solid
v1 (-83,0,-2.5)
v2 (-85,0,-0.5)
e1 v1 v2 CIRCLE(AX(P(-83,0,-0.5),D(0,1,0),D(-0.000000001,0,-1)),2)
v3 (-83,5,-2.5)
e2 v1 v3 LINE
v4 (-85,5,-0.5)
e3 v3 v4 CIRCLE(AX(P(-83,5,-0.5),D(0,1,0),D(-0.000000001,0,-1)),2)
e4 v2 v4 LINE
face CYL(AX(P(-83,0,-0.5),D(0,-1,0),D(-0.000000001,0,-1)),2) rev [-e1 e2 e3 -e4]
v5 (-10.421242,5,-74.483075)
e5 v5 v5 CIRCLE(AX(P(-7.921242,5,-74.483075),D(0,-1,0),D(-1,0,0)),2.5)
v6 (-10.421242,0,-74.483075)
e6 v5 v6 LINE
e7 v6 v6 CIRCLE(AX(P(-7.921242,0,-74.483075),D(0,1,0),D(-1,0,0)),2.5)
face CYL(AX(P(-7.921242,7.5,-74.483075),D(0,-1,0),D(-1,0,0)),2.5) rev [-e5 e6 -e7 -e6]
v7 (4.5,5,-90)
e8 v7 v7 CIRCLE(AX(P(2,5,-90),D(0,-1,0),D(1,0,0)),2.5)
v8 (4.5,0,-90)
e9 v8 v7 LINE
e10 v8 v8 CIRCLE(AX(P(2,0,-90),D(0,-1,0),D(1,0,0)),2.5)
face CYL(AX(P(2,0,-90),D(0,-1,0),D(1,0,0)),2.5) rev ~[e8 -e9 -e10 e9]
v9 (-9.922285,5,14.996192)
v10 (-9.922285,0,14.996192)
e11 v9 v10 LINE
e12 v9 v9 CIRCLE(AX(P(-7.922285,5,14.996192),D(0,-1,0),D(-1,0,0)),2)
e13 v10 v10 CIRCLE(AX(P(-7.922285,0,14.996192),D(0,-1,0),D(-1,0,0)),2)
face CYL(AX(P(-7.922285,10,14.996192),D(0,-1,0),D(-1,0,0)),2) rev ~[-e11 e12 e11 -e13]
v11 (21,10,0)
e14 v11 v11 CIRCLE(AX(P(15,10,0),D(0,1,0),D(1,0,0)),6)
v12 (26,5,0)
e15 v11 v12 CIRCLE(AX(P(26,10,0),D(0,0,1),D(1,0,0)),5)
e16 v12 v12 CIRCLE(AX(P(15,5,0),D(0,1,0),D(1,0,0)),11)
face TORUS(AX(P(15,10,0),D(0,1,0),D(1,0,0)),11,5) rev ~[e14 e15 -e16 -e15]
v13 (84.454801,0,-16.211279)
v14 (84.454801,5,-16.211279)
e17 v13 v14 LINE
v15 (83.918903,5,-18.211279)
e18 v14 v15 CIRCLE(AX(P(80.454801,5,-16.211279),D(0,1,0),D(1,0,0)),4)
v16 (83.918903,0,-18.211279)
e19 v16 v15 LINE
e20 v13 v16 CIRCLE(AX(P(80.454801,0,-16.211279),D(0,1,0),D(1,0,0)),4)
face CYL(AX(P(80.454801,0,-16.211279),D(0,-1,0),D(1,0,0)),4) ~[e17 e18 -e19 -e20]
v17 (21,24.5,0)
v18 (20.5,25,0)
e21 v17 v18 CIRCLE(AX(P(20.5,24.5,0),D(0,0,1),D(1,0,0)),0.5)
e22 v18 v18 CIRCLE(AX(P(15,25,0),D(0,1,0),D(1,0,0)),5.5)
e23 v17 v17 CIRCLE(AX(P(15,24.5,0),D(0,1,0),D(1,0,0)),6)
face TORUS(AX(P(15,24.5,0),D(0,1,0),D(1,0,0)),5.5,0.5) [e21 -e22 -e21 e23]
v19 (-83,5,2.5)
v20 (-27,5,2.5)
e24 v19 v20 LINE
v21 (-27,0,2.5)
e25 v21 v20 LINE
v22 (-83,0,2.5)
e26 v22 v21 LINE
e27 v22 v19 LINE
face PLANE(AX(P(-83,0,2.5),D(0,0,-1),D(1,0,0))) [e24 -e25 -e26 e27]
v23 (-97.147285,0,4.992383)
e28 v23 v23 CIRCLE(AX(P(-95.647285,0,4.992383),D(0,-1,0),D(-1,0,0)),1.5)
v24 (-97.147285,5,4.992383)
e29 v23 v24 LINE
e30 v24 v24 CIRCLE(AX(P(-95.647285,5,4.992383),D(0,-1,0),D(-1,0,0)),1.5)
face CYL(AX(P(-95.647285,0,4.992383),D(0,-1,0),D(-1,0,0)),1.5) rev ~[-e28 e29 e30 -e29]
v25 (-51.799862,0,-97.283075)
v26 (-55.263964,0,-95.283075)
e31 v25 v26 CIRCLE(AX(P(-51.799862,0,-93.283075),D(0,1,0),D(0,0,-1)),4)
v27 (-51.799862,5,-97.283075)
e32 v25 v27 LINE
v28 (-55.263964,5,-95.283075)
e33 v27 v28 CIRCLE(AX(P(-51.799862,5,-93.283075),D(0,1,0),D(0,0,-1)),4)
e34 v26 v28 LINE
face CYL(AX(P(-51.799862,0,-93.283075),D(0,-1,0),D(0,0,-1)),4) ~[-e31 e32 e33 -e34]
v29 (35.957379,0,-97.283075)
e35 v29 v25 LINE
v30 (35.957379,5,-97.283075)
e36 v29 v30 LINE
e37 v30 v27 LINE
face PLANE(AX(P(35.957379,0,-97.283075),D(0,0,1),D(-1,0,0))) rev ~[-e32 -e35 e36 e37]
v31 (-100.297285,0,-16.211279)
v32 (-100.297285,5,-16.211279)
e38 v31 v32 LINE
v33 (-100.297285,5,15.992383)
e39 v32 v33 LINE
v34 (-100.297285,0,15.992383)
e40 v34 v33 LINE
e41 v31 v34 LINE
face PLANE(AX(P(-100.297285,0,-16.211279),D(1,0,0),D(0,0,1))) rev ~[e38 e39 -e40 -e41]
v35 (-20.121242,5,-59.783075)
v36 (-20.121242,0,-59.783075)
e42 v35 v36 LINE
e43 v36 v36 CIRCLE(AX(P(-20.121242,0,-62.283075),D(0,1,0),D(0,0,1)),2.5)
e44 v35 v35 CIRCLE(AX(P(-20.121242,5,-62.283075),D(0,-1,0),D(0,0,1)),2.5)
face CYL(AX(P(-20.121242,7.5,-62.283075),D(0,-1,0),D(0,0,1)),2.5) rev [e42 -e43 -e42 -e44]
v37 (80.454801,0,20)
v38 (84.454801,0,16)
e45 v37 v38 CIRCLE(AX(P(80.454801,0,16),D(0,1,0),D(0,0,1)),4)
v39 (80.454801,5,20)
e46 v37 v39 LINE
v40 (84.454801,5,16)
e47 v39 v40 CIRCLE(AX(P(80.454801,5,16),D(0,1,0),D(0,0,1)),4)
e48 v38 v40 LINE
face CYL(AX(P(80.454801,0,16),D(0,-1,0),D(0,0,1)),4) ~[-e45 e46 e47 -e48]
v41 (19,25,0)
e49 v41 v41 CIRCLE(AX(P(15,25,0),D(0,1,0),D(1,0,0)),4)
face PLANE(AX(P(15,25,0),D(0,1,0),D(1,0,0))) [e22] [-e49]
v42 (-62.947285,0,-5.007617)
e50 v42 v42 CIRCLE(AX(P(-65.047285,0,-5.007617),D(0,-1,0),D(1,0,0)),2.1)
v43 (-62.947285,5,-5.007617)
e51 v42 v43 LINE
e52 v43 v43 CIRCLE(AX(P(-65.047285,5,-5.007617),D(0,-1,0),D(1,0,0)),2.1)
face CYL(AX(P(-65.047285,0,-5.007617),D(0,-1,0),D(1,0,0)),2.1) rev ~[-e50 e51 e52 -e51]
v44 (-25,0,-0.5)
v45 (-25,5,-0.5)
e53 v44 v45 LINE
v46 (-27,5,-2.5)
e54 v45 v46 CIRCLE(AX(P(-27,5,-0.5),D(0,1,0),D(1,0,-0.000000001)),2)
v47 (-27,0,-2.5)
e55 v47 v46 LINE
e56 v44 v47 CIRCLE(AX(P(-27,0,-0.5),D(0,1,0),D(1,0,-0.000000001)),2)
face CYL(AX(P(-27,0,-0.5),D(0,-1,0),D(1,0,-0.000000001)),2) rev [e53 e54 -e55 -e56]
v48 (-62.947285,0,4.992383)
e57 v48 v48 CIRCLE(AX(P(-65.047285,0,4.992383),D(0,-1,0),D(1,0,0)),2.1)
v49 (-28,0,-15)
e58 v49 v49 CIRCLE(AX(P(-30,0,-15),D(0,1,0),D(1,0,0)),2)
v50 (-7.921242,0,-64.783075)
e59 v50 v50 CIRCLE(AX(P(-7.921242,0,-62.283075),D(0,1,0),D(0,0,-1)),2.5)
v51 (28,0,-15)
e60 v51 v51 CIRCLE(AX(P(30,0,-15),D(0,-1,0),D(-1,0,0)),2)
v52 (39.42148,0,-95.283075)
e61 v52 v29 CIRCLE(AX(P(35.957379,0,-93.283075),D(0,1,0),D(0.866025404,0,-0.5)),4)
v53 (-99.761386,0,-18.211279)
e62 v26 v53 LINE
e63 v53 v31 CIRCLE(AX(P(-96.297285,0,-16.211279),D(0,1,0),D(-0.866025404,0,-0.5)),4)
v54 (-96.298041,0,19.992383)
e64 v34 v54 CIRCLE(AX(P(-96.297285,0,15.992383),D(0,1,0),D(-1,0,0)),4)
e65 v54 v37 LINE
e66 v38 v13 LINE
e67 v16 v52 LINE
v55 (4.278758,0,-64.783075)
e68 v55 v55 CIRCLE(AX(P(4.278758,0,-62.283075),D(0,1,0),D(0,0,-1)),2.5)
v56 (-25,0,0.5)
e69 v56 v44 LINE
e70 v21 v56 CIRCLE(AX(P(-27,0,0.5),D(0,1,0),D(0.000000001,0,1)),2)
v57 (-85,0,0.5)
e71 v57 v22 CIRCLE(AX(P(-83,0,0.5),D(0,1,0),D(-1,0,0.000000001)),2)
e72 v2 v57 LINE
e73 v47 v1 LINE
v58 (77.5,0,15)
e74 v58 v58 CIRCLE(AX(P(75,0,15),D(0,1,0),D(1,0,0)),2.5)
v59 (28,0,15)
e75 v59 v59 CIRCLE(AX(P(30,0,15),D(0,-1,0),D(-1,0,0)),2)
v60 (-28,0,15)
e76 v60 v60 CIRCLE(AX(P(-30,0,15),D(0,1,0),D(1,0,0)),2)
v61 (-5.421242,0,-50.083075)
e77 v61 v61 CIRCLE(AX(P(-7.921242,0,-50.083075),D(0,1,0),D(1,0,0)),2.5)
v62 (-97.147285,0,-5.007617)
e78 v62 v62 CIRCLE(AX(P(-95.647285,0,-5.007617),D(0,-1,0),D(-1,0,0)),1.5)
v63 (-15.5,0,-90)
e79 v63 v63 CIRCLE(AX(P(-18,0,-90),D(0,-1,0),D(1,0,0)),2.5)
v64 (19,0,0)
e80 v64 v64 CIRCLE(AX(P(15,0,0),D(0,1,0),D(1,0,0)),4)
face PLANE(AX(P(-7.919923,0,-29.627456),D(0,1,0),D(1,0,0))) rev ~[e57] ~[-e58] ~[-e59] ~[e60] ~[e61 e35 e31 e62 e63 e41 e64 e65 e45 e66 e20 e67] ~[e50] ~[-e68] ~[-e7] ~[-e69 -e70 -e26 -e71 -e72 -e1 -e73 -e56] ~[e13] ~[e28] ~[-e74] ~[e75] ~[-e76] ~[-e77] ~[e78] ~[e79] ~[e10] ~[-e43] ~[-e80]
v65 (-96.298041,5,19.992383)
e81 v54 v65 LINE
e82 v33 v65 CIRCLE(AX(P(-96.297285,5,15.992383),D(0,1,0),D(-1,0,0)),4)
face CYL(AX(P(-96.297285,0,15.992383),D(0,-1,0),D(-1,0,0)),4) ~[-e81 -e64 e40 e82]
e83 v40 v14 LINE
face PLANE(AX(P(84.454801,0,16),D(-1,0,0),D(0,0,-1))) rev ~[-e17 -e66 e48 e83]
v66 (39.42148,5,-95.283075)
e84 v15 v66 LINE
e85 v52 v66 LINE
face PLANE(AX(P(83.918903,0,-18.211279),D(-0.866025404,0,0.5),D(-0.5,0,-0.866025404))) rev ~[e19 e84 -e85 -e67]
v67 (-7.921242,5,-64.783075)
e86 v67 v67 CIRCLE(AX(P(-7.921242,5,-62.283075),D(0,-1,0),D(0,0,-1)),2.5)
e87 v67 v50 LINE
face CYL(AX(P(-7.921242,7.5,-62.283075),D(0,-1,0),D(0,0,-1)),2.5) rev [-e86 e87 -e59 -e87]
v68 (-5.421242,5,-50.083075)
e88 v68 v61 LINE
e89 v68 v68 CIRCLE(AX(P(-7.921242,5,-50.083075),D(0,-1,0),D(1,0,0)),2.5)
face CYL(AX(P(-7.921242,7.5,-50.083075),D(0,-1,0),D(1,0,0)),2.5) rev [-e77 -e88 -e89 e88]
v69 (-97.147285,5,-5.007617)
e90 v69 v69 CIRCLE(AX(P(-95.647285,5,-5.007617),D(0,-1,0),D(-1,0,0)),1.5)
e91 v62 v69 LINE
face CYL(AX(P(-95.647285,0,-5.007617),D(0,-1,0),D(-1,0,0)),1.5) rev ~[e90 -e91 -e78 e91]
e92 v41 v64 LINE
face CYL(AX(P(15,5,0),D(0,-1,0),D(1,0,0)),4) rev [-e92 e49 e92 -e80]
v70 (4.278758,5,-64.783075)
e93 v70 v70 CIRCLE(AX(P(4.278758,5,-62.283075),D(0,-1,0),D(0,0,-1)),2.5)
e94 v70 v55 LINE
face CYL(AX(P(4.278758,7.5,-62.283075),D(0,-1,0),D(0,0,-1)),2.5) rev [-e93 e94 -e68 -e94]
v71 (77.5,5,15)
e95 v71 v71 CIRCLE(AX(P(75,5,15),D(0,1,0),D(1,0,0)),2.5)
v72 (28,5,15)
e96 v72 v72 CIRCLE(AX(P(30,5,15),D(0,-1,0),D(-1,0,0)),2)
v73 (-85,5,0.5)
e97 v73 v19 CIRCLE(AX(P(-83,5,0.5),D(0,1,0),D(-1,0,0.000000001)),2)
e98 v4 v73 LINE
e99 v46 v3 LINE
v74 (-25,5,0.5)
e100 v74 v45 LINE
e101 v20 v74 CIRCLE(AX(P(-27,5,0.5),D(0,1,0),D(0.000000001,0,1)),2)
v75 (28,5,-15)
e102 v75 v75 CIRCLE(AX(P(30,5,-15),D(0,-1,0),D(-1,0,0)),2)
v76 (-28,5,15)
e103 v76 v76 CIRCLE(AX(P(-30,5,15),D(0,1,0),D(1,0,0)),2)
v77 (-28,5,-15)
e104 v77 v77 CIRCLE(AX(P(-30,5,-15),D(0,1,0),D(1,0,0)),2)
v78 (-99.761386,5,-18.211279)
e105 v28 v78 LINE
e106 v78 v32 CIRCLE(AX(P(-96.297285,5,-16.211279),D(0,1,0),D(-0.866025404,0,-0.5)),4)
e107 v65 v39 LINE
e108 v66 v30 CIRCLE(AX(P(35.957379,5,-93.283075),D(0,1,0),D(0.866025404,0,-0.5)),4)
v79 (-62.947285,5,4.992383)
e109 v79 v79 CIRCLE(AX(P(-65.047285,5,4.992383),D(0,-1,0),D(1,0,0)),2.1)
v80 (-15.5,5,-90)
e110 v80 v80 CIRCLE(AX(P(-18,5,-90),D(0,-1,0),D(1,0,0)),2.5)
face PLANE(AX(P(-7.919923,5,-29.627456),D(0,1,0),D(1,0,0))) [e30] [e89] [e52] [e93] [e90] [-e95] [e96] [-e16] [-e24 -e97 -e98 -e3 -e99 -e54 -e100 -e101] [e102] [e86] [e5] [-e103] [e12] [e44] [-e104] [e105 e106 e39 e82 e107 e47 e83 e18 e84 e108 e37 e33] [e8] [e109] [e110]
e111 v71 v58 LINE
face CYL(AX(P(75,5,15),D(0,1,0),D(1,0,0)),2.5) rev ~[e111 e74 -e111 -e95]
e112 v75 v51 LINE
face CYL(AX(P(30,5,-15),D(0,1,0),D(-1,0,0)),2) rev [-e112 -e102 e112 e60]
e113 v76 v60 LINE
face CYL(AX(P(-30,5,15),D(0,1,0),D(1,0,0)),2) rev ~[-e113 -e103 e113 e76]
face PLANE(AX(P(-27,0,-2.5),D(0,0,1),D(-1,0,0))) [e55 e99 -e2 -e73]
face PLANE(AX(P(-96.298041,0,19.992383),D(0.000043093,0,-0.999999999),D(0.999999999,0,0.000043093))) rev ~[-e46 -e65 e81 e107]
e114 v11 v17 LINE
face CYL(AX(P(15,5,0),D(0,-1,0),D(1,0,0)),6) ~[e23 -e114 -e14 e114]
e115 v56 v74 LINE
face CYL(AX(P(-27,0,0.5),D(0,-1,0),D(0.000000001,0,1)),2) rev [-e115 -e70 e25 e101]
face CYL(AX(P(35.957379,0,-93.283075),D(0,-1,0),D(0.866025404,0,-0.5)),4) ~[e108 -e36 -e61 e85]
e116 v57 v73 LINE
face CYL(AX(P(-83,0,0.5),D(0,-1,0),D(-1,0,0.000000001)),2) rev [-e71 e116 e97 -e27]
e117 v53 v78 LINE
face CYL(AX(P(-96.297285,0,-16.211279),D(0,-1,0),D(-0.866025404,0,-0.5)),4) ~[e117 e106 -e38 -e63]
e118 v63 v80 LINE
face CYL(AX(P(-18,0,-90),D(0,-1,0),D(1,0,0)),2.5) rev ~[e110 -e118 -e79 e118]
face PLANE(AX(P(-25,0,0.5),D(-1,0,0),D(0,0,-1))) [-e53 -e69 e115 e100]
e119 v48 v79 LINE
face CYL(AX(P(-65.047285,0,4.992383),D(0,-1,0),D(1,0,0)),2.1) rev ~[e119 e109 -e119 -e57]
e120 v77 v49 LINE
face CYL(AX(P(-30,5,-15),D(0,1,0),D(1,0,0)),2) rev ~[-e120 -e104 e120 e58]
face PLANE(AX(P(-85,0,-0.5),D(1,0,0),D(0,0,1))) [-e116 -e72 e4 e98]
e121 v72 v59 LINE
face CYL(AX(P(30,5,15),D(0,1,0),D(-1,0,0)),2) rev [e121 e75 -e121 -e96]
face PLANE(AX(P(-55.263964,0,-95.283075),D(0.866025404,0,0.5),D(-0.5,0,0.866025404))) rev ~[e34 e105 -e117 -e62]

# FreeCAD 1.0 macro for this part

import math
import FreeCAD as App
import Part
import Sketcher

V = App.Vector
Q = App.Units.Quantity


def edges_at(feature, points):
    """Names of the edges that pass closest to the given points."""
    edges = feature.Shape.Edges
    near = lambda p: min(range(len(edges)), key=lambda i: edges[i].distToShape(Part.Vertex(*p))[0])
    return sorted({f"Edge{near(p) + 1}" for p in points})


def add_polygon(sketch, points):
    """Adds a closed chain of lines whose ends are joined by coincident constraints."""
    first, n = sketch.GeometryCount, len(points)
    for a, b in zip(points, points[1:] + points[:1]):
        sketch.addGeometry(Part.LineSegment(App.Vector(*a, 0), App.Vector(*b, 0)), False)
    for i in range(n):
        sketch.addConstraint(Sketcher.Constraint("Coincident", first + i, 2, first + (i + 1) % n, 1))

doc = App.newDocument("Part")
body = doc.addObject("PartDesign::Body", "Body")

sketch1 = body.newObject("Sketcher::SketchObject", "Sketch")
sketch1.AttachmentSupport = (doc.getObject("XZ_Plane"), [""])
sketch1.MapMode = "FlatFace"
sketch1.addGeometry(Part.LineSegment(V(-96.298041, 19.992383, 0), V(80.454801, 20, 0)), False)
sketch1.addGeometry(Part.ArcOfCircle(Part.Circle(V(80.454801, 16, 0), V(0, 0, 1), 4), math.radians(0), math.radians(90)), False)
sketch1.addGeometry(Part.LineSegment(V(84.454801, 16, 0), V(84.454801, -16.211279, 0)), False)
sketch1.addGeometry(Part.ArcOfCircle(Part.Circle(V(80.454801, -16.211279, 0), V(0, 0, 1), 4), math.radians(-30), math.radians(0)), False)
sketch1.addGeometry(Part.LineSegment(V(83.918903, -18.211279, 0), V(39.42148, -95.283075, 0)), False)
sketch1.addGeometry(Part.ArcOfCircle(Part.Circle(V(35.957379, -93.283075, 0), V(0, 0, 1), 4), math.radians(-90), math.radians(-30)), False)
sketch1.addGeometry(Part.LineSegment(V(35.957379, -97.283075, 0), V(-51.799862, -97.283075, 0)), False)
sketch1.addGeometry(Part.ArcOfCircle(Part.Circle(V(-51.799862, -93.283075, 0), V(0, 0, 1), 4), math.radians(-150), math.radians(-90)), False)
sketch1.addGeometry(Part.LineSegment(V(-55.263964, -95.283075, 0), V(-99.761386, -18.211279, 0)), False)
sketch1.addGeometry(Part.ArcOfCircle(Part.Circle(V(-96.297285, -16.211279, 0), V(0, 0, 1), 4), math.radians(-180), math.radians(-150)), False)
sketch1.addGeometry(Part.LineSegment(V(-100.297285, -16.211279, 0), V(-100.297285, 15.992383, 0)), False)
sketch1.addGeometry(Part.ArcOfCircle(Part.Circle(V(-96.297285, 15.992383, 0), V(0, 0, 1), 4), math.radians(90.01083), math.radians(180)), False)
sketch1.addGeometry(Part.LineSegment(V(-83, -2.5, 0), V(-27, -2.5, 0)), False)
sketch1.addGeometry(Part.ArcOfCircle(Part.Circle(V(-27, -0.5, 0), V(0, 0, 1), 2), math.radians(-90), math.radians(0)), False)
sketch1.addGeometry(Part.LineSegment(V(-25, -0.5, 0), V(-25, 0.5, 0)), False)
sketch1.addGeometry(Part.ArcOfCircle(Part.Circle(V(-27, 0.5, 0), V(0, 0, 1), 2), math.radians(0), math.radians(90)), False)
sketch1.addGeometry(Part.LineSegment(V(-27, 2.5, 0), V(-83, 2.5, 0)), False)
sketch1.addGeometry(Part.ArcOfCircle(Part.Circle(V(-83, 0.5, 0), V(0, 0, 1), 2), math.radians(90), math.radians(180)), False)
sketch1.addGeometry(Part.LineSegment(V(-85, 0.5, 0), V(-85, -0.5, 0)), False)
sketch1.addGeometry(Part.ArcOfCircle(Part.Circle(V(-83, -0.5, 0), V(0, 0, 1), 2), math.radians(-180), math.radians(-90)), False)
sketch1.addGeometry(Part.Circle(V(15, 0, 0), V(0, 0, 1), 4), False)
sketch1.addConstraint(Sketcher.Constraint("Coincident", 0, 2, 1, 2))
sketch1.addConstraint(Sketcher.Constraint("Tangent", 1, 1, 2, 1))
sketch1.addConstraint(Sketcher.Constraint("Tangent", 2, 2, 3, 2))
sketch1.addConstraint(Sketcher.Constraint("Tangent", 3, 1, 4, 1))
sketch1.addConstraint(Sketcher.Constraint("Tangent", 4, 2, 5, 2))
sketch1.addConstraint(Sketcher.Constraint("Tangent", 5, 1, 6, 1))
sketch1.addConstraint(Sketcher.Constraint("Tangent", 6, 2, 7, 2))
sketch1.addConstraint(Sketcher.Constraint("Tangent", 7, 1, 8, 1))
sketch1.addConstraint(Sketcher.Constraint("Tangent", 8, 2, 9, 2))
sketch1.addConstraint(Sketcher.Constraint("Tangent", 9, 1, 10, 1))
sketch1.addConstraint(Sketcher.Constraint("Tangent", 10, 2, 11, 2))
sketch1.addConstraint(Sketcher.Constraint("Coincident", 11, 1, 0, 1))
sketch1.addConstraint(Sketcher.Constraint("Tangent", 12, 2, 13, 1))
sketch1.addConstraint(Sketcher.Constraint("Tangent", 13, 2, 14, 1))
sketch1.addConstraint(Sketcher.Constraint("Tangent", 14, 2, 15, 1))
sketch1.addConstraint(Sketcher.Constraint("Tangent", 15, 2, 16, 1))
sketch1.addConstraint(Sketcher.Constraint("Tangent", 16, 2, 17, 1))
sketch1.addConstraint(Sketcher.Constraint("Tangent", 17, 2, 18, 1))
sketch1.addConstraint(Sketcher.Constraint("Tangent", 18, 2, 19, 1))
sketch1.addConstraint(Sketcher.Constraint("Tangent", 19, 2, 12, 1))
sketch1.addConstraint(Sketcher.Constraint("Vertical", 2))
sketch1.addConstraint(Sketcher.Constraint("Horizontal", 6))
sketch1.addConstraint(Sketcher.Constraint("Vertical", 10))
sketch1.addConstraint(Sketcher.Constraint("Horizontal", 12))
sketch1.addConstraint(Sketcher.Constraint("Vertical", 14))
sketch1.addConstraint(Sketcher.Constraint("Horizontal", 16))
sketch1.addConstraint(Sketcher.Constraint("Vertical", 18))
sketch1.addConstraint(Sketcher.Constraint("Equal", 1, 3))
sketch1.addConstraint(Sketcher.Constraint("Equal", 3, 5))
sketch1.addConstraint(Sketcher.Constraint("Equal", 5, 7))
sketch1.addConstraint(Sketcher.Constraint("Equal", 7, 9))
sketch1.addConstraint(Sketcher.Constraint("Equal", 9, 11))
sketch1.addConstraint(Sketcher.Constraint("Equal", 13, 15))
sketch1.addConstraint(Sketcher.Constraint("Equal", 15, 17))
sketch1.addConstraint(Sketcher.Constraint("Equal", 17, 19))
sketch1.addConstraint(Sketcher.Constraint("Equal", 11, 20))
sketch1.addConstraint(Sketcher.Constraint("PointOnObject", 20, 3, -1))
sketch1.addConstraint(Sketcher.Constraint("Horizontal", 3, 3, 9, 3))
sketch1.addConstraint(Sketcher.Constraint("Horizontal", 4, 2, 7, 1))
sketch1.addConstraint(Sketcher.Constraint("Vertical", 3, 3, 0, 2))
sketch1.addConstraint(Sketcher.Constraint("Diameter", 20, 8.0))
sketch1.addConstraint(Sketcher.Constraint("Radius", 13, 2.0))
sketch1.addConstraint(Sketcher.Constraint("DistanceX", 12, 1, 12, 2, 56.0))
sketch1.addConstraint(Sketcher.Constraint("DistanceY", 14, 1, 14, 2, 1.0))
sketch1.addConstraint(Sketcher.Constraint("Angle", 4, Q("-120 deg")))
sketch1.addConstraint(Sketcher.Constraint("DistanceY", -1, 1, 1, 3, 16.0))
sketch1.addConstraint(Sketcher.Constraint("DistanceX", 13, 3, -1, 1, 27.0))
sketch1.addConstraint(Sketcher.Constraint("DistanceX", -1, 1, 20, 3, 15.0))
sketch1.addConstraint(Sketcher.Constraint("DistanceY", 13, 3, -1, 1, 0.5))
sketch1.addConstraint(Sketcher.Constraint("DistanceX", 6, 2, 6, 1, 87.757241))
sketch1.addConstraint(Sketcher.Constraint("DistanceY", 2, 2, 2, 1, 32.211279))
sketch1.addConstraint(Sketcher.Constraint("DistanceY", 10, 1, 10, 2, 32.203662))
sketch1.addConstraint(Sketcher.Constraint("DistanceX", -1, 1, 1, 3, 80.454801))
sketch1.addConstraint(Sketcher.Constraint("DistanceX", -1, 1, 5, 3, 35.957379))
sketch1.addConstraint(Sketcher.Constraint("DistanceX", 11, 1, -1, 1, 96.298041))
pad1 = body.newObject("PartDesign::Pad", "Pad")
pad1.Profile = sketch1
pad1.Length = 5
pad1.Reversed = True

sketch2 = body.newObject("Sketcher::SketchObject", "Sketch001")
sketch2.AttachmentSupport = (doc.getObject("XZ_Plane"), [""])
sketch2.MapMode = "FlatFace"
sketch2.AttachmentOffset = App.Placement(V(0, 0, -5), App.Rotation())
sketch2.addGeometry(Part.Circle(V(15, 0, 0), V(0, 0, 1), 6), False)
sketch2.addGeometry(Part.Circle(V(15, 0, 0), V(0, 0, 1), 4), False)
sketch2.addConstraint(Sketcher.Constraint("Coincident", 1, 3, 0, 3))
sketch2.addConstraint(Sketcher.Constraint("PointOnObject", 0, 3, -1))
sketch2.addConstraint(Sketcher.Constraint("Diameter", 0, 12.0))
sketch2.addConstraint(Sketcher.Constraint("Diameter", 1, 8.0))
sketch2.addConstraint(Sketcher.Constraint("DistanceX", -1, 1, 0, 3, 15.0))
pad2 = body.newObject("PartDesign::Pad", "Pad001")
pad2.Profile = sketch2
pad2.Length = 20
pad2.Reversed = True
doc.recompute()

fillet = body.newObject("PartDesign::Fillet", "Fillet")
fillet.Base = (pad2, edges_at(pad2, [(9, 5, 0)]))
fillet.Radius = 5
doc.recompute()

fillet2 = body.newObject("PartDesign::Fillet", "Fillet001")
fillet2.Base = (fillet, edges_at(fillet, [(9, 25, 0)]))
fillet2.Radius = 0.5

sketch3 = body.newObject("Sketcher::SketchObject", "Sketch002")
sketch3.AttachmentSupport = (doc.getObject("XZ_Plane"), [""])
sketch3.MapMode = "FlatFace"
sketch3.AttachmentOffset = App.Placement(V(0, 0, -5), App.Rotation())
sketch3.addGeometry(Part.Circle(V(-30, -15, 0), V(0, 0, 1), 2), False)
sketch3.addGeometry(Part.Circle(V(-30, 15, 0), V(0, 0, 1), 2), False)
sketch3.addConstraint(Sketcher.Constraint("Equal", 0, 1))
sketch3.addConstraint(Sketcher.Constraint("Symmetric", 0, 3, 1, 3, -1))
sketch3.addConstraint(Sketcher.Constraint("Diameter", 0, 4.0))
sketch3.addConstraint(Sketcher.Constraint("DistanceX", 0, 3, -1, 1, 30.0))
sketch3.addConstraint(Sketcher.Constraint("DistanceY", 0, 3, -1, 1, 15.0))
pocket1 = body.newObject("PartDesign::Pocket", "Pocket")
pocket1.Profile = sketch3
pocket1.Length = 5
pocket1.Reversed = True
doc.recompute()

mirrored = body.newObject("PartDesign::Mirrored", "Mirrored")
mirrored.Originals = [pocket1]
mirrored.MirrorPlane = (doc.getObject("YZ_Plane"), [""])
body.Tip = mirrored

sketch4 = body.newObject("Sketcher::SketchObject", "Sketch003")
sketch4.AttachmentSupport = (doc.getObject("XZ_Plane"), [""])
sketch4.MapMode = "FlatFace"
sketch4.addGeometry(Part.Circle(V(-18, -90, 0), V(0, 0, 1), 2.5), False)
sketch4.addConstraint(Sketcher.Constraint("Diameter", 0, 5.0))
sketch4.addConstraint(Sketcher.Constraint("DistanceX", 0, 3, -1, 1, 18.0))
sketch4.addConstraint(Sketcher.Constraint("DistanceY", 0, 3, -1, 1, 90.0))
pocket2 = body.newObject("PartDesign::Pocket", "Pocket001")
pocket2.Profile = sketch4
pocket2.Type = "UpToFirst"

sketch5 = body.newObject("Sketcher::SketchObject", "Sketch004")
sketch5.AttachmentSupport = (doc.getObject("XZ_Plane"), [""])
sketch5.MapMode = "FlatFace"
sketch5.addGeometry(Part.Circle(V(2, -90, 0), V(0, 0, 1), 2.5), False)
sketch5.addConstraint(Sketcher.Constraint("Diameter", 0, 5.0))
sketch5.addConstraint(Sketcher.Constraint("DistanceX", -1, 1, 0, 3, 2.0))
sketch5.addConstraint(Sketcher.Constraint("DistanceY", 0, 3, -1, 1, 90.0))
pocket3 = body.newObject("PartDesign::Pocket", "Pocket002")
pocket3.Profile = sketch5
pocket3.Type = "UpToFirst"

sketch6 = body.newObject("Sketcher::SketchObject", "Sketch005")
sketch6.AttachmentSupport = (doc.getObject("XZ_Plane"), [""])
sketch6.MapMode = "FlatFace"
sketch6.addGeometry(Part.Circle(V(-95.647285, 4.992383, 0), V(0, 0, 1), 1.5), False)
sketch6.addConstraint(Sketcher.Constraint("Diameter", 0, 3.0))
sketch6.addConstraint(Sketcher.Constraint("DistanceX", 0, 3, -1, 1, 95.647285))
sketch6.addConstraint(Sketcher.Constraint("DistanceY", -1, 1, 0, 3, 4.992383))
pocket4 = body.newObject("PartDesign::Pocket", "Pocket003")
pocket4.Profile = sketch6
pocket4.Type = "UpToFirst"

sketch7 = body.newObject("Sketcher::SketchObject", "Sketch006")
sketch7.AttachmentSupport = (doc.getObject("XZ_Plane"), [""])
sketch7.MapMode = "FlatFace"
sketch7.addGeometry(Part.Circle(V(-95.647285, -5.007617, 0), V(0, 0, 1), 1.5), False)
sketch7.addConstraint(Sketcher.Constraint("Diameter", 0, 3.0))
sketch7.addConstraint(Sketcher.Constraint("DistanceX", 0, 3, -1, 1, 95.647285))
sketch7.addConstraint(Sketcher.Constraint("DistanceY", 0, 3, -1, 1, 5.007617))
pocket5 = body.newObject("PartDesign::Pocket", "Pocket004")
pocket5.Profile = sketch7
pocket5.Type = "UpToFirst"

sketch8 = body.newObject("Sketcher::SketchObject", "Sketch007")
sketch8.AttachmentSupport = (doc.getObject("XZ_Plane"), [""])
sketch8.MapMode = "FlatFace"
sketch8.addGeometry(Part.Circle(V(-65.047285, 4.992383, 0), V(0, 0, 1), 2.1), False)
sketch8.addConstraint(Sketcher.Constraint("Diameter", 0, 4.2))
sketch8.addConstraint(Sketcher.Constraint("DistanceX", 0, 3, -1, 1, 65.047285))
sketch8.addConstraint(Sketcher.Constraint("DistanceY", -1, 1, 0, 3, 4.992383))
pocket6 = body.newObject("PartDesign::Pocket", "Pocket005")
pocket6.Profile = sketch8
pocket6.Type = "UpToFirst"

sketch9 = body.newObject("Sketcher::SketchObject", "Sketch008")
sketch9.AttachmentSupport = (doc.getObject("XZ_Plane"), [""])
sketch9.MapMode = "FlatFace"
sketch9.addGeometry(Part.Circle(V(-65.047285, -5.007617, 0), V(0, 0, 1), 2.1), False)
sketch9.addConstraint(Sketcher.Constraint("Diameter", 0, 4.2))
sketch9.addConstraint(Sketcher.Constraint("DistanceX", 0, 3, -1, 1, 65.047285))
sketch9.addConstraint(Sketcher.Constraint("DistanceY", 0, 3, -1, 1, 5.007617))
pocket7 = body.newObject("PartDesign::Pocket", "Pocket006")
pocket7.Profile = sketch9
pocket7.Type = "UpToFirst"

sketch10 = body.newObject("Sketcher::SketchObject", "Sketch009")
sketch10.AttachmentSupport = (doc.getObject("YZ_Plane"), [""])
sketch10.MapMode = "FlatFace"
sketch10.AttachmentOffset = App.Placement(V(0, 0, -7.921242), App.Rotation())
add_polygon(sketch10, [(9.002152, -62.283075), (0, -62.283075), (0, -64.783075), (7.5, -64.783075)])
sketch10.addGeometry(Part.LineSegment(V(0, -62.283075, 0), V(9.002152, -62.283075, 0)), True)
sketch10.addConstraint(Sketcher.Constraint("Horizontal", 0))
sketch10.addConstraint(Sketcher.Constraint("Vertical", 1))
sketch10.addConstraint(Sketcher.Constraint("Horizontal", 2))
sketch10.addConstraint(Sketcher.Constraint("Horizontal", 4))
sketch10.addConstraint(Sketcher.Constraint("Coincident", 4, 1, 0, 2))
sketch10.addConstraint(Sketcher.Constraint("PointOnObject", 0, 2, -2))
sketch10.addConstraint(Sketcher.Constraint("Equal", 0, 4))
sketch10.addConstraint(Sketcher.Constraint("Angle", 3, Q("59 deg")))
sketch10.addConstraint(Sketcher.Constraint("DistanceX", 2, 1, 2, 2, 7.5))
sketch10.addConstraint(Sketcher.Constraint("DistanceY", 1, 2, 1, 1, 2.5))
sketch10.addConstraint(Sketcher.Constraint("DistanceY", 0, 2, -1, 1, 62.283075))
groove = body.newObject("PartDesign::Groove", "Groove")
groove.Profile = sketch10
groove.ReferenceAxis = (sketch10, ["Axis0"])
groove.Angle = 360
doc.recompute()

linearpattern = body.newObject("PartDesign::LinearPattern", "LinearPattern")
linearpattern.Originals = [groove]
linearpattern.Direction = (doc.getObject("X_Axis"), [""])
linearpattern.Mode = "offset"
linearpattern.Offset = 12.2
linearpattern.Occurrences = 2
body.Tip = linearpattern

sketch11 = body.newObject("Sketcher::SketchObject", "Sketch010")
sketch11.AttachmentSupport = (doc.getObject("XY_Plane"), [""])
sketch11.MapMode = "FlatFace"
sketch11.AttachmentOffset = App.Placement(V(0, 0, -74.483075), App.Rotation())
add_polygon(sketch11, [(-7.921242, 9.002152), (-7.921242, 0), (-10.421242, 0), (-10.421242, 7.5)])
sketch11.addGeometry(Part.LineSegment(V(-7.921242, 0, 0), V(-7.921242, 9.002152, 0)), True)
sketch11.addConstraint(Sketcher.Constraint("Vertical", 0))
sketch11.addConstraint(Sketcher.Constraint("Horizontal", 1))
sketch11.addConstraint(Sketcher.Constraint("Vertical", 2))
sketch11.addConstraint(Sketcher.Constraint("Vertical", 4))
sketch11.addConstraint(Sketcher.Constraint("Coincident", 4, 1, 0, 2))
sketch11.addConstraint(Sketcher.Constraint("PointOnObject", 0, 2, -1))
sketch11.addConstraint(Sketcher.Constraint("Equal", 0, 4))
sketch11.addConstraint(Sketcher.Constraint("Angle", 3, Q("31 deg")))
sketch11.addConstraint(Sketcher.Constraint("DistanceX", 1, 2, 1, 1, 2.5))
sketch11.addConstraint(Sketcher.Constraint("DistanceY", 2, 1, 2, 2, 7.5))
sketch11.addConstraint(Sketcher.Constraint("DistanceX", 0, 2, -1, 1, 7.921242))
groove2 = body.newObject("PartDesign::Groove", "Groove001")
groove2.Profile = sketch11
groove2.ReferenceAxis = (sketch11, ["Axis0"])
groove2.Angle = 360

sketch12 = body.newObject("Sketcher::SketchObject", "Sketch011")
sketch12.AttachmentSupport = (doc.getObject("YZ_Plane"), [""])
sketch12.MapMode = "FlatFace"
sketch12.AttachmentOffset = App.Placement(V(0, 0, -20.121242), App.Rotation())
add_polygon(sketch12, [(9.002152, -62.283075), (0, -62.283075), (0, -59.783075), (7.5, -59.783075)])
sketch12.addGeometry(Part.LineSegment(V(0, -62.283075, 0), V(9.002152, -62.283075, 0)), True)
sketch12.addConstraint(Sketcher.Constraint("Horizontal", 0))
sketch12.addConstraint(Sketcher.Constraint("Vertical", 1))
sketch12.addConstraint(Sketcher.Constraint("Horizontal", 2))
sketch12.addConstraint(Sketcher.Constraint("Horizontal", 4))
sketch12.addConstraint(Sketcher.Constraint("Coincident", 4, 1, 0, 2))
sketch12.addConstraint(Sketcher.Constraint("PointOnObject", 0, 2, -2))
sketch12.addConstraint(Sketcher.Constraint("Equal", 0, 4))
sketch12.addConstraint(Sketcher.Constraint("Angle", 3, Q("-59 deg")))
sketch12.addConstraint(Sketcher.Constraint("DistanceX", 2, 1, 2, 2, 7.5))
sketch12.addConstraint(Sketcher.Constraint("DistanceY", 1, 1, 1, 2, 2.5))
sketch12.addConstraint(Sketcher.Constraint("DistanceY", 0, 2, -1, 1, 62.283075))
groove3 = body.newObject("PartDesign::Groove", "Groove002")
groove3.Profile = sketch12
groove3.ReferenceAxis = (sketch12, ["Axis0"])
groove3.Angle = 360

sketch13 = body.newObject("Sketcher::SketchObject", "Sketch012")
sketch13.AttachmentSupport = (doc.getObject("XY_Plane"), [""])
sketch13.MapMode = "FlatFace"
sketch13.AttachmentOffset = App.Placement(V(0, 0, -50.083075), App.Rotation())
add_polygon(sketch13, [(-7.921242, 9.002152), (-7.921242, 0), (-5.421242, 0), (-5.421242, 7.5)])
sketch13.addGeometry(Part.LineSegment(V(-7.921242, 0, 0), V(-7.921242, 9.002152, 0)), True)
sketch13.addConstraint(Sketcher.Constraint("Vertical", 0))
sketch13.addConstraint(Sketcher.Constraint("Horizontal", 1))
sketch13.addConstraint(Sketcher.Constraint("Vertical", 2))
sketch13.addConstraint(Sketcher.Constraint("Vertical", 4))
sketch13.addConstraint(Sketcher.Constraint("Coincident", 4, 1, 0, 2))
sketch13.addConstraint(Sketcher.Constraint("PointOnObject", 0, 2, -1))
sketch13.addConstraint(Sketcher.Constraint("Equal", 0, 4))
sketch13.addConstraint(Sketcher.Constraint("Angle", 3, Q("149 deg")))
sketch13.addConstraint(Sketcher.Constraint("DistanceX", 1, 1, 1, 2, 2.5))
sketch13.addConstraint(Sketcher.Constraint("DistanceY", 2, 1, 2, 2, 7.5))
sketch13.addConstraint(Sketcher.Constraint("DistanceX", 0, 2, -1, 1, 7.921242))
groove4 = body.newObject("PartDesign::Groove", "Groove003")
groove4.Profile = sketch13
groove4.ReferenceAxis = (sketch13, ["Axis0"])
groove4.Angle = 360

sketch14 = body.newObject("Sketcher::SketchObject", "Sketch013")
sketch14.AttachmentSupport = (doc.getObject("XY_Plane"), [""])
sketch14.MapMode = "FlatFace"
sketch14.AttachmentOffset = App.Placement(V(0, 0, -62.283075), App.Rotation())
add_polygon(sketch14, [(-7.921242, 9.002152), (-7.921242, 0), (-10.421242, 0), (-10.421242, 7.5)])
sketch14.addGeometry(Part.LineSegment(V(-7.921242, 0, 0), V(-7.921242, 9.002152, 0)), True)
sketch14.addConstraint(Sketcher.Constraint("Vertical", 0))
sketch14.addConstraint(Sketcher.Constraint("Horizontal", 1))
sketch14.addConstraint(Sketcher.Constraint("Vertical", 2))
sketch14.addConstraint(Sketcher.Constraint("Vertical", 4))
sketch14.addConstraint(Sketcher.Constraint("Coincident", 4, 1, 0, 2))
sketch14.addConstraint(Sketcher.Constraint("PointOnObject", 0, 2, -1))
sketch14.addConstraint(Sketcher.Constraint("Equal", 0, 4))
sketch14.addConstraint(Sketcher.Constraint("Angle", 3, Q("31 deg")))
sketch14.addConstraint(Sketcher.Constraint("DistanceX", 1, 2, 1, 1, 2.5))
sketch14.addConstraint(Sketcher.Constraint("DistanceY", 2, 1, 2, 2, 7.5))
sketch14.addConstraint(Sketcher.Constraint("DistanceX", 0, 2, -1, 1, 7.921242))
groove5 = body.newObject("PartDesign::Groove", "Groove004")
groove5.Profile = sketch14
groove5.ReferenceAxis = (sketch14, ["Axis0"])
groove5.Angle = 360

sketch15 = body.newObject("Sketcher::SketchObject", "Sketch014")
sketch15.AttachmentSupport = (doc.getObject("YZ_Plane"), [""])
sketch15.MapMode = "FlatFace"
sketch15.AttachmentOffset = App.Placement(V(0, 0, -7.921242), App.Rotation())
add_polygon(sketch15, [(9.002152, -62.283075), (0, -62.283075), (0, -59.783075), (7.5, -59.783075)])
sketch15.addGeometry(Part.LineSegment(V(0, -62.283075, 0), V(9.002152, -62.283075, 0)), True)
sketch15.addConstraint(Sketcher.Constraint("Horizontal", 0))
sketch15.addConstraint(Sketcher.Constraint("Vertical", 1))
sketch15.addConstraint(Sketcher.Constraint("Horizontal", 2))
sketch15.addConstraint(Sketcher.Constraint("Horizontal", 4))
sketch15.addConstraint(Sketcher.Constraint("Coincident", 4, 1, 0, 2))
sketch15.addConstraint(Sketcher.Constraint("PointOnObject", 0, 2, -2))
sketch15.addConstraint(Sketcher.Constraint("Equal", 0, 4))
sketch15.addConstraint(Sketcher.Constraint("Angle", 3, Q("-59 deg")))
sketch15.addConstraint(Sketcher.Constraint("DistanceX", 2, 1, 2, 2, 7.5))
sketch15.addConstraint(Sketcher.Constraint("DistanceY", 1, 1, 1, 2, 2.5))
sketch15.addConstraint(Sketcher.Constraint("DistanceY", 0, 2, -1, 1, 62.283075))
groove6 = body.newObject("PartDesign::Groove", "Groove005")
groove6.Profile = sketch15
groove6.ReferenceAxis = (sketch15, ["Axis0"])
groove6.Angle = 360

sketch16 = body.newObject("Sketcher::SketchObject", "Sketch015")
sketch16.AttachmentSupport = (doc.getObject("XY_Plane"), [""])
sketch16.MapMode = "FlatFace"
sketch16.AttachmentOffset = App.Placement(V(0, 0, -62.283075), App.Rotation())
add_polygon(sketch16, [(-7.921242, 9.002152), (-7.921242, 0), (-5.421242, 0), (-5.421242, 7.5)])
sketch16.addGeometry(Part.LineSegment(V(-7.921242, 0, 0), V(-7.921242, 9.002152, 0)), True)
sketch16.addConstraint(Sketcher.Constraint("Vertical", 0))
sketch16.addConstraint(Sketcher.Constraint("Horizontal", 1))
sketch16.addConstraint(Sketcher.Constraint("Vertical", 2))
sketch16.addConstraint(Sketcher.Constraint("Vertical", 4))
sketch16.addConstraint(Sketcher.Constraint("Coincident", 4, 1, 0, 2))
sketch16.addConstraint(Sketcher.Constraint("PointOnObject", 0, 2, -1))
sketch16.addConstraint(Sketcher.Constraint("Equal", 0, 4))
sketch16.addConstraint(Sketcher.Constraint("Angle", 3, Q("149 deg")))
sketch16.addConstraint(Sketcher.Constraint("DistanceX", 1, 1, 1, 2, 2.5))
sketch16.addConstraint(Sketcher.Constraint("DistanceY", 2, 1, 2, 2, 7.5))
sketch16.addConstraint(Sketcher.Constraint("DistanceX", 0, 2, -1, 1, 7.921242))
groove7 = body.newObject("PartDesign::Groove", "Groove006")
groove7.Profile = sketch16
groove7.ReferenceAxis = (sketch16, ["Axis0"])
groove7.Angle = 360

sketch17 = body.newObject("Sketcher::SketchObject", "Sketch016")
sketch17.AttachmentSupport = (doc.getObject("XZ_Plane"), [""])
sketch17.MapMode = "FlatFace"
sketch17.AttachmentOffset = App.Placement(V(0, 0, -5), App.Rotation())
sketch17.addGeometry(Part.Circle(V(-7.922285, 14.996192, 0), V(0, 0, 1), 2), False)
sketch17.addConstraint(Sketcher.Constraint("Diameter", 0, 4.0))
sketch17.addConstraint(Sketcher.Constraint("DistanceY", -1, 1, 0, 3, 14.996192))
sketch17.addConstraint(Sketcher.Constraint("DistanceX", 0, 3, -1, 1, 7.922285))
doc.recompute()
hole = body.newObject("PartDesign::Hole", "Hole")
hole.Profile = sketch17
hole.ThreadType = "None"
hole.Diameter = 4
hole.DepthType = "Dimension"
hole.Depth = 5
hole.DrillPoint = "Flat"
hole.Reversed = True

sketch18 = body.newObject("Sketcher::SketchObject", "Sketch017")
sketch18.AttachmentSupport = (doc.getObject("XZ_Plane"), [""])
sketch18.MapMode = "FlatFace"
sketch18.AttachmentOffset = App.Placement(V(0, 0, -5), App.Rotation())
sketch18.addGeometry(Part.Circle(V(75, 15, 0), V(0, 0, 1), 2.5), False)
sketch18.addConstraint(Sketcher.Constraint("Diameter", 0, 5.0))
sketch18.addConstraint(Sketcher.Constraint("DistanceX", -1, 1, 0, 3, 75.0))
sketch18.addConstraint(Sketcher.Constraint("DistanceY", -1, 1, 0, 3, 15.0))
pocket8 = body.newObject("PartDesign::Pocket", "Pocket007")
pocket8.Profile = sketch18
pocket8.Length = 10
pocket8.Reversed = True

doc.recompute()
